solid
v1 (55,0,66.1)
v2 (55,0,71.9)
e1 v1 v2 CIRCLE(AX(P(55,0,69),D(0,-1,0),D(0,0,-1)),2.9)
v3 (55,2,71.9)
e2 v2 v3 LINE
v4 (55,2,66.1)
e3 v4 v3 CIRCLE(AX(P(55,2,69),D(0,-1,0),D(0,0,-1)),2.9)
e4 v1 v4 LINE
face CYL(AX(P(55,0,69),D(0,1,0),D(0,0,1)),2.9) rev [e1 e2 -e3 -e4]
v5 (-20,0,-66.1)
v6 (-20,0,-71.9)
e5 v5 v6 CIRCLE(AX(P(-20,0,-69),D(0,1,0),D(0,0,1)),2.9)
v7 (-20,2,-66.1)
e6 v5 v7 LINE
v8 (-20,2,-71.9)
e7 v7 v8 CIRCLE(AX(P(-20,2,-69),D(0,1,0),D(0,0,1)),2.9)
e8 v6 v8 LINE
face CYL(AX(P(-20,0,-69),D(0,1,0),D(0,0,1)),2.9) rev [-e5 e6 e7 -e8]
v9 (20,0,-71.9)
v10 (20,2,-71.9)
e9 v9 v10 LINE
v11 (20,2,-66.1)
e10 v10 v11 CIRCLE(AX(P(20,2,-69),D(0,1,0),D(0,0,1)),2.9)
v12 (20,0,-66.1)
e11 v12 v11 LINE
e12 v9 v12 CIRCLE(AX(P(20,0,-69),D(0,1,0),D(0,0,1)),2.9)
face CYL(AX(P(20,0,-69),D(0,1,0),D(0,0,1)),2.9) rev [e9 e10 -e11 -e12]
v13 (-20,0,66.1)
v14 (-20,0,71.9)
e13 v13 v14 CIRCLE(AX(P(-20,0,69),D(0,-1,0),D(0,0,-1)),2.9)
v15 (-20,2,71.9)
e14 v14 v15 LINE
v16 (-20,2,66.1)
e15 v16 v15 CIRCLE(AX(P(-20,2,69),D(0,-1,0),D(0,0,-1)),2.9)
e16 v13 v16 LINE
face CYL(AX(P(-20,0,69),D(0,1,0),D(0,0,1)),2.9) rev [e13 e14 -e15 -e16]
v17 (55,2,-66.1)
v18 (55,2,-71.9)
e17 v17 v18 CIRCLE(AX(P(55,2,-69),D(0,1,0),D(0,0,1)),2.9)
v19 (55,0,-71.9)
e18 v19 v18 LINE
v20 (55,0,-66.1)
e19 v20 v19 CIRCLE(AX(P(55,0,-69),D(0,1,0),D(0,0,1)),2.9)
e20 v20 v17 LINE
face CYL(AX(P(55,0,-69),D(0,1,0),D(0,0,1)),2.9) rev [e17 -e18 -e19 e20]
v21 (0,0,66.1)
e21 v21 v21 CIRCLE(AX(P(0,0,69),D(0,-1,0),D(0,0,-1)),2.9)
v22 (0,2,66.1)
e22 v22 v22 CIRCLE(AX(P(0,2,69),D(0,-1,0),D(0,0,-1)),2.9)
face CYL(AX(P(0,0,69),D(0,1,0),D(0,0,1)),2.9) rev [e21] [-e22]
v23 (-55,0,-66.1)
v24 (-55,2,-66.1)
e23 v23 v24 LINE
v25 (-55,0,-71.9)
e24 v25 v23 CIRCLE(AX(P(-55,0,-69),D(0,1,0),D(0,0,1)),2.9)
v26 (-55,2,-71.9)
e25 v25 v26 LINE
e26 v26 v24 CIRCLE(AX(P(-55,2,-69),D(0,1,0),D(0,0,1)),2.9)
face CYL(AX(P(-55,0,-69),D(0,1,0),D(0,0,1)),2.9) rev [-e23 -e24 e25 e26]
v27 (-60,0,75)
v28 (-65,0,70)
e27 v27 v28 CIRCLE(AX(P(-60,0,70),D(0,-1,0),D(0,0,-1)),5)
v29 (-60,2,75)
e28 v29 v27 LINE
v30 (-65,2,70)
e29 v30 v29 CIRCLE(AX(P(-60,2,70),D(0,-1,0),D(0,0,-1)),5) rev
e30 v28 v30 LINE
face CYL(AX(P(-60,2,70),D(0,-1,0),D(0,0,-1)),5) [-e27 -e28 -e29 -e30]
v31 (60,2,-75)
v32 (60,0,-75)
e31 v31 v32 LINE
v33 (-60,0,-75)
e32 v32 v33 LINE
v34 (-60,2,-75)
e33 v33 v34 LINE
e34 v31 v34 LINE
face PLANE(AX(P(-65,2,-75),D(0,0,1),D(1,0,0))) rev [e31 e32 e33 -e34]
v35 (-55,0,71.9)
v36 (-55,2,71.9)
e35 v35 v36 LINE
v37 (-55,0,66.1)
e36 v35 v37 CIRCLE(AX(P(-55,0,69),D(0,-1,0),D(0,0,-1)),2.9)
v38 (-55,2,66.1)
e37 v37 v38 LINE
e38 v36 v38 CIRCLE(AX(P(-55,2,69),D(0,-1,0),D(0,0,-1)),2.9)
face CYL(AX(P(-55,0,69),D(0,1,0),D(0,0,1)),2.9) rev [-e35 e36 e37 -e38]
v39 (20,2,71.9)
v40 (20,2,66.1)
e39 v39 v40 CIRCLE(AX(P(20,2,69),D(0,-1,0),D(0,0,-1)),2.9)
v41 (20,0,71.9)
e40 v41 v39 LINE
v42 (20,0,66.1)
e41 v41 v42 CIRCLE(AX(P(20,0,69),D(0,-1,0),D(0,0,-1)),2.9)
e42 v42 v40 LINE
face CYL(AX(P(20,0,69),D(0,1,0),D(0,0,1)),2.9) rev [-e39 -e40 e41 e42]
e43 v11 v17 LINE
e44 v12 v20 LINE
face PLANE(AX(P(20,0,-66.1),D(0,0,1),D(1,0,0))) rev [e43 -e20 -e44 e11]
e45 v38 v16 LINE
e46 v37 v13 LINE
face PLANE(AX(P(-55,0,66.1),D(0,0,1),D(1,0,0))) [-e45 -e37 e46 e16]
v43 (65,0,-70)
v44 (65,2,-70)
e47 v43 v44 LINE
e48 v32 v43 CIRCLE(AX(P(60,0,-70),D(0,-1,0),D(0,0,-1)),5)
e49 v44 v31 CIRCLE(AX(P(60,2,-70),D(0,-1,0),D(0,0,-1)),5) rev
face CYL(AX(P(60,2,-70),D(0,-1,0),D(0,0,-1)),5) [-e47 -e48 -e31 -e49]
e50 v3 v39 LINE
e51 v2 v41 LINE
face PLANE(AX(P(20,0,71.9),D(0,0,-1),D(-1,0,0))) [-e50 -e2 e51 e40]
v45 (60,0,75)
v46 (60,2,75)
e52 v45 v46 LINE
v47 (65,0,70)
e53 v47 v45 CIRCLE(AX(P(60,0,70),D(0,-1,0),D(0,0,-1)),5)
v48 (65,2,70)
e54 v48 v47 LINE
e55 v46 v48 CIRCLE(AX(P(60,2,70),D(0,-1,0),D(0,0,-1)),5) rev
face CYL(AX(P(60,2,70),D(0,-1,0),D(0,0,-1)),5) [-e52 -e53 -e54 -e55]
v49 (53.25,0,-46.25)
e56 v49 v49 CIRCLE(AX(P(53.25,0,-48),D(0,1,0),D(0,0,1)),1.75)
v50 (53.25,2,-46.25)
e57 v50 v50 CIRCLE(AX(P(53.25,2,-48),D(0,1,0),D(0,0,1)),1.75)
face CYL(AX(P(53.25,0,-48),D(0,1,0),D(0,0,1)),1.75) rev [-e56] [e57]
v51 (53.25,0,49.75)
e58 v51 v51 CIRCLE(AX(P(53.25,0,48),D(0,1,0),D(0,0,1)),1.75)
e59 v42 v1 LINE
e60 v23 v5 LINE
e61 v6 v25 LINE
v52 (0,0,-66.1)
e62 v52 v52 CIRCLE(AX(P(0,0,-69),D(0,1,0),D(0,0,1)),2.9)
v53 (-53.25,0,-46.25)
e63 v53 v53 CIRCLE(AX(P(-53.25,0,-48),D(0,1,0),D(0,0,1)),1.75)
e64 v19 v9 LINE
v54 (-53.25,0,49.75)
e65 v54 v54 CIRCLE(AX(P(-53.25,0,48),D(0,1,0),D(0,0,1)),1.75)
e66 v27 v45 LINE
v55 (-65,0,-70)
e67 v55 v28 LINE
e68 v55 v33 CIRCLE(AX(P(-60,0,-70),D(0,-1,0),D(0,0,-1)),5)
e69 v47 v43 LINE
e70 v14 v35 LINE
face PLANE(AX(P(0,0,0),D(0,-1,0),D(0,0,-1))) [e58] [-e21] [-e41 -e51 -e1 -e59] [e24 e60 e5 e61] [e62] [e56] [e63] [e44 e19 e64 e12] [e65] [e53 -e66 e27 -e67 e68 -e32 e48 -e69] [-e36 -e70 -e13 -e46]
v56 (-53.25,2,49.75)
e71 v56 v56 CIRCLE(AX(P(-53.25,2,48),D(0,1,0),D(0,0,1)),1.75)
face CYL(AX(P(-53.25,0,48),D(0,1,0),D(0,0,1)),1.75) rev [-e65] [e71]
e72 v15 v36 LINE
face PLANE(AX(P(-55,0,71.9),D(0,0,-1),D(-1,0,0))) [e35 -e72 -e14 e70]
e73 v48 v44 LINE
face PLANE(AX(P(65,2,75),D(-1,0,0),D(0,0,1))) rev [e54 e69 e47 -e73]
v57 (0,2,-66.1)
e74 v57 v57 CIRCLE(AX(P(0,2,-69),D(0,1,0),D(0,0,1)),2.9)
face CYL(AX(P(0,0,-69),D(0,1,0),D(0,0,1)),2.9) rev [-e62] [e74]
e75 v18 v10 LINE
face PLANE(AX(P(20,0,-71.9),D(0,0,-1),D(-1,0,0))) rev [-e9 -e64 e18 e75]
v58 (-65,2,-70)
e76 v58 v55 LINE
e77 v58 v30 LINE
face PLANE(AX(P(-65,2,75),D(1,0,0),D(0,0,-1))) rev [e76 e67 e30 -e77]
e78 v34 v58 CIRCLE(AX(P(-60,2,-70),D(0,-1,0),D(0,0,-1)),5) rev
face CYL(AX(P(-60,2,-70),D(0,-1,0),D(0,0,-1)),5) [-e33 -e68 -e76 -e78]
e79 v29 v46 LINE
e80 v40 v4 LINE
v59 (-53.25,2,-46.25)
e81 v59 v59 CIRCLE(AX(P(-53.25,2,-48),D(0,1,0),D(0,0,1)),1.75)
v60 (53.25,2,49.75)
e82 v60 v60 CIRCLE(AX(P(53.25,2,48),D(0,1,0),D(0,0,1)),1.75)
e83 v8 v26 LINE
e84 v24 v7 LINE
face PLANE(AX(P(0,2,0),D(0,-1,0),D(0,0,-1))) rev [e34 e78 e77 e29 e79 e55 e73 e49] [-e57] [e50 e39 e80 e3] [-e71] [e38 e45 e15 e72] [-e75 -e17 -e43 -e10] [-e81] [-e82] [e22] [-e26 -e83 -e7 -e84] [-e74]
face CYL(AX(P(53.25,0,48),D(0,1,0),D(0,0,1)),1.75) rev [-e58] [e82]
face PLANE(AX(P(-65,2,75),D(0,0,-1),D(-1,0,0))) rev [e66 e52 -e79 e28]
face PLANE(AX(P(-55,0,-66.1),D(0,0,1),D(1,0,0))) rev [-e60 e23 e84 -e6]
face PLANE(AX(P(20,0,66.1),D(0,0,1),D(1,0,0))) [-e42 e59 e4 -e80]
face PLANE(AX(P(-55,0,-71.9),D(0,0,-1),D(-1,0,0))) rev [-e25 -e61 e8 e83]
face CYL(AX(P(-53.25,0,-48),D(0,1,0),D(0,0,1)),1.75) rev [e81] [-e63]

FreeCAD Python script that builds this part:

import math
import FreeCAD as App
import Part
import Sketcher


def edges_at(feature, points):
    """Names of the edges that pass closest to the given points."""
    edges = feature.Shape.Edges
    near = lambda p: min(range(len(edges)), key=lambda i: edges[i].distToShape(Part.Vertex(*p))[0])
    return sorted({f"Edge{near(p) + 1}" for p in points})


def add_polygon(sketch, points):
    """Adds a closed chain of lines whose ends are joined by coincident constraints."""
    first, n = sketch.GeometryCount, len(points)
    for a, b in zip(points, points[1:] + points[:1]):
        sketch.addGeometry(Part.LineSegment(App.Vector(*a, 0), App.Vector(*b, 0)), False)
    for i in range(n):
        sketch.addConstraint(Sketcher.Constraint("Coincident", first + i, 2, first + (i + 1) % n, 1))

doc = App.newDocument("Part")
body = doc.addObject("PartDesign::Body", "Body")

# Sketch on XZ plane
sketch1 = doc.addObject("Sketcher::SketchObject", "Sketch")
body.addObject(sketch1)
sketch1.AttachmentSupport = (doc.XZ_Plane, [""])
sketch1.MapMode = "FlatFace"
add_polygon(sketch1, [(-65, -75), (-65, 75), (65, 75), (65, -75)])  # lines 0-3
sketch1.addConstraint(Sketcher.Constraint("Vertical", 0))
sketch1.addConstraint(Sketcher.Constraint("Horizontal", 1))
sketch1.addConstraint(Sketcher.Constraint("Vertical", 2))
sketch1.addConstraint(Sketcher.Constraint("Horizontal", 3))
sketch1.addConstraint(Sketcher.Constraint("Symmetric", 0, 2, 2, 2, -1, 1))
sketch1.addConstraint(Sketcher.Constraint("DistanceX", 1, 1, 1, 2, 130.0))
sketch1.addConstraint(Sketcher.Constraint("DistanceY", 0, 1, 0, 2, 150.0))
pad1 = doc.addObject("PartDesign::Pad", "Pad")
body.addObject(pad1)
pad1.Profile = sketch1
pad1.Length = 2
pad1.Reversed = True

# Sketch on XZ plane
sketch2 = doc.addObject("Sketcher::SketchObject", "Sketch001")
body.addObject(sketch2)
sketch2.AttachmentSupport = (doc.XZ_Plane, [""])
sketch2.MapMode = "FlatFace"
sketch2.AttachmentOffset = App.Placement(App.Vector(0, 0, -2), App.Rotation())
sketch2.addGeometry(Part.Circle(App.Vector(0, -69, 0), App.Vector(0, 0, 1), 2.9), False)
sketch2.addGeometry(Part.LineSegment(App.Vector(-20, -71.9, 0), App.Vector(-55, -71.9, 0)), False)
sketch2.addGeometry(Part.ArcOfCircle(Part.Circle(App.Vector(-55, -69, 0), App.Vector(0, 0, 1), 2.9), math.radians(90), math.radians(270)), False)
sketch2.addGeometry(Part.LineSegment(App.Vector(-55, -66.1, 0), App.Vector(-20, -66.1, 0)), False)
sketch2.addGeometry(Part.ArcOfCircle(Part.Circle(App.Vector(-20, -69, 0), App.Vector(0, 0, 1), 2.9), math.radians(-90), math.radians(90)), False)
sketch2.addGeometry(Part.LineSegment(App.Vector(55, -71.9, 0), App.Vector(20, -71.9, 0)), False)
sketch2.addGeometry(Part.ArcOfCircle(Part.Circle(App.Vector(20, -69, 0), App.Vector(0, 0, 1), 2.9), math.radians(90), math.radians(270)), False)
sketch2.addGeometry(Part.LineSegment(App.Vector(20, -66.1, 0), App.Vector(55, -66.1, 0)), False)
sketch2.addGeometry(Part.ArcOfCircle(Part.Circle(App.Vector(55, -69, 0), App.Vector(0, 0, 1), 2.9), math.radians(-90), math.radians(90)), False)
sketch2.addConstraint(Sketcher.Constraint("Tangent", 1, 2, 2, 2))
sketch2.addConstraint(Sketcher.Constraint("Tangent", 2, 1, 3, 1))
sketch2.addConstraint(Sketcher.Constraint("Tangent", 3, 2, 4, 2))
sketch2.addConstraint(Sketcher.Constraint("Tangent", 4, 1, 1, 1))
sketch2.addConstraint(Sketcher.Constraint("Tangent", 5, 2, 6, 2))
sketch2.addConstraint(Sketcher.Constraint("Tangent", 6, 1, 7, 1))
sketch2.addConstraint(Sketcher.Constraint("Tangent", 7, 2, 8, 2))
sketch2.addConstraint(Sketcher.Constraint("Tangent", 8, 1, 5, 1))
sketch2.addConstraint(Sketcher.Constraint("Horizontal", 1))
sketch2.addConstraint(Sketcher.Constraint("Horizontal", 3))
sketch2.addConstraint(Sketcher.Constraint("Horizontal", 5))
sketch2.addConstraint(Sketcher.Constraint("Horizontal", 7))
sketch2.addConstraint(Sketcher.Constraint("Equal", 0, 2))
sketch2.addConstraint(Sketcher.Constraint("Equal", 4, 6))
sketch2.addConstraint(Sketcher.Constraint("Symmetric", 4, 3, 6, 3, -2))
sketch2.addConstraint(Sketcher.Constraint("PointOnObject", 0, 3, -2))
sketch2.addConstraint(Sketcher.Constraint("Horizontal", 0, 3, 2, 3))
sketch2.addConstraint(Sketcher.Constraint("Equal", 3, 5))
sketch2.addConstraint(Sketcher.Constraint("Diameter", 0, 5.8))
sketch2.addConstraint(Sketcher.Constraint("DistanceX", 1, 2, 1, 1, 35.0))
sketch2.addConstraint(Sketcher.Constraint("DistanceY", 0, 3, -1, 1, 69.0))
sketch2.addConstraint(Sketcher.Constraint("DistanceX", 2, 3, -1, 1, 55.0))
pocket1 = doc.addObject("PartDesign::Pocket", "Pocket")
body.addObject(pocket1)
pocket1.Profile = sketch2
pocket1.Type = "ThroughAll"
pocket1.Reversed = True
doc.recompute()

mirrored = doc.addObject("PartDesign::Mirrored", "Mirrored")
body.addObject(mirrored)
mirrored.Originals = [pocket1]
mirrored.MirrorPlane = (doc.XY_Plane, [""])
body.Tip = mirrored
doc.recompute()

fillet = doc.addObject("PartDesign::Fillet", "Fillet")
body.addObject(fillet)
fillet.Base = (mirrored, edges_at(mirrored, [
    (65, 1, 75),
    (-65, 1, 75),
    (-65, 1, -75),
    (65, 1, -75),
]))
fillet.Radius = 5

# Sketch on XZ plane
sketch3 = doc.addObject("Sketcher::SketchObject", "Sketch002")
body.addObject(sketch3)
sketch3.AttachmentSupport = (doc.XZ_Plane, [""])
sketch3.MapMode = "FlatFace"
sketch3.AttachmentOffset = App.Placement(App.Vector(0, 0, -2), App.Rotation())
sketch3.addGeometry(Part.Circle(App.Vector(-53.25, -48, 0), App.Vector(0, 0, 1), 1.75), False)
sketch3.addGeometry(Part.Circle(App.Vector(53.25, -48, 0), App.Vector(0, 0, 1), 1.75), False)
sketch3.addGeometry(Part.Circle(App.Vector(-53.25, 48, 0), App.Vector(0, 0, 1), 1.75), False)
sketch3.addGeometry(Part.Circle(App.Vector(53.25, 48, 0), App.Vector(0, 0, 1), 1.75), False)
sketch3.addConstraint(Sketcher.Constraint("Equal", 0, 1))
sketch3.addConstraint(Sketcher.Constraint("Equal", 1, 2))
sketch3.addConstraint(Sketcher.Constraint("Equal", 2, 3))
sketch3.addConstraint(Sketcher.Constraint("Symmetric", 1, 3, 2, 3, -1, 1))
sketch3.addConstraint(Sketcher.Constraint("Symmetric", 0, 3, 3, 3, -1, 1))
sketch3.addConstraint(Sketcher.Constraint("Symmetric", 0, 3, 1, 3, -2))
sketch3.addConstraint(Sketcher.Constraint("Diameter", 0, 3.5))
sketch3.addConstraint(Sketcher.Constraint("DistanceY", 0, 3, -1, 1, 48.0))
sketch3.addConstraint(Sketcher.Constraint("DistanceX", 0, 3, 1, 3, 106.5))
pocket2 = doc.addObject("PartDesign::Pocket", "Pocket001")
body.addObject(pocket2)
pocket2.Profile = sketch3
pocket2.Type = "ThroughAll"
pocket2.Reversed = True

doc.recompute()
